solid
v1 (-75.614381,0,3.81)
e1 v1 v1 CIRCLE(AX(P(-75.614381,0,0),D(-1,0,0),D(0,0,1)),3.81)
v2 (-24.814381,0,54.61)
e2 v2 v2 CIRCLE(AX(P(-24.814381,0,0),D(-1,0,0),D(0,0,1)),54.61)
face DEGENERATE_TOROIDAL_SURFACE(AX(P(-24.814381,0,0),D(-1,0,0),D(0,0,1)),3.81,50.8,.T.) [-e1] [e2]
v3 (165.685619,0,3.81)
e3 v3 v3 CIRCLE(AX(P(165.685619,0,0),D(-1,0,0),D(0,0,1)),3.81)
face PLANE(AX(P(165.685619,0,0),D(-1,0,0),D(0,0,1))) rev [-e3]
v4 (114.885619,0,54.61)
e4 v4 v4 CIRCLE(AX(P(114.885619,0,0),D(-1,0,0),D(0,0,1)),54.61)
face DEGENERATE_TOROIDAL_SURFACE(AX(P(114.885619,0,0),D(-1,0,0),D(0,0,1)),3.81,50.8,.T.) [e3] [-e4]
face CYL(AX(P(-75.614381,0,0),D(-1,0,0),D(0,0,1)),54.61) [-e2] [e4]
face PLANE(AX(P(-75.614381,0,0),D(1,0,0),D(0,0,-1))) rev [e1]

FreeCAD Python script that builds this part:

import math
import FreeCAD as App
import Part
import Sketcher
Q = App.Units.Quantity

doc = App.newDocument("Part")
body = doc.addObject("PartDesign::Body", "Body")

sketch1 = doc.addObject("Sketcher::SketchObject", "Sketch")
body.addObject(sketch1)
sketch1.AttachmentSupport = (doc.XZ_Plane, [""])
sketch1.MapMode = "FlatFace"
sketch1.addGeometry([
    Part.LineSegment(App.Vector(-75.614381, 0, 0), App.Vector(165.685619, 0, 0)),
    Part.LineSegment(App.Vector(165.685619, 0, 0), App.Vector(165.685619, -3.81, 0)),
    Part.ArcOfCircle(Part.Circle(App.Vector(114.885619, -3.81, 0), App.Vector(0, 0, 1), 50.8), math.radians(-90), math.radians(0)),
    Part.LineSegment(App.Vector(114.885619, -54.61, 0), App.Vector(-24.814381, -54.61, 0)),
    Part.ArcOfCircle(Part.Circle(App.Vector(-24.814381, -3.81, 0), App.Vector(0, 0, 1), 50.8), math.radians(-180), math.radians(-90)),
    Part.LineSegment(App.Vector(-75.614381, -3.81, 0), App.Vector(-75.614381, 0, 0)),
], False)
sketch1.addConstraint([
    Sketcher.Constraint("Coincident", 0, 2, 1, 1),
    Sketcher.Constraint("Tangent", 1, 2, 2, 2),
    Sketcher.Constraint("Tangent", 2, 1, 3, 1),
    Sketcher.Constraint("Tangent", 3, 2, 4, 2),
    Sketcher.Constraint("Tangent", 4, 1, 5, 1),
    Sketcher.Constraint("Coincident", 5, 2, 0, 1),
    Sketcher.Constraint("Horizontal", 0),
    Sketcher.Constraint("Vertical", 1),
    Sketcher.Constraint("Horizontal", 3),
    Sketcher.Constraint("Vertical", 5),
    Sketcher.Constraint("Equal", 2, 4),
    Sketcher.Constraint("PointOnObject", 0, 2, -1),
    Sketcher.Constraint("Radius", 2, Q("2 in")),
    Sketcher.Constraint("DistanceX", 0, 1, 0, 2, Q("9.5 in")),
    Sketcher.Constraint("DistanceY", 1, 2, 1, 1, Q("0.15 in")),
    Sketcher.Constraint("DistanceX", -1, 1, 2, 3, 114.885619),
])
revolution = doc.addObject("PartDesign::Revolution", "Revolution")
body.addObject(revolution)
revolution.Profile = sketch1
revolution.ReferenceAxis = (sketch1, ["H_Axis"])
revolution.Angle = 360

doc.recompute()
